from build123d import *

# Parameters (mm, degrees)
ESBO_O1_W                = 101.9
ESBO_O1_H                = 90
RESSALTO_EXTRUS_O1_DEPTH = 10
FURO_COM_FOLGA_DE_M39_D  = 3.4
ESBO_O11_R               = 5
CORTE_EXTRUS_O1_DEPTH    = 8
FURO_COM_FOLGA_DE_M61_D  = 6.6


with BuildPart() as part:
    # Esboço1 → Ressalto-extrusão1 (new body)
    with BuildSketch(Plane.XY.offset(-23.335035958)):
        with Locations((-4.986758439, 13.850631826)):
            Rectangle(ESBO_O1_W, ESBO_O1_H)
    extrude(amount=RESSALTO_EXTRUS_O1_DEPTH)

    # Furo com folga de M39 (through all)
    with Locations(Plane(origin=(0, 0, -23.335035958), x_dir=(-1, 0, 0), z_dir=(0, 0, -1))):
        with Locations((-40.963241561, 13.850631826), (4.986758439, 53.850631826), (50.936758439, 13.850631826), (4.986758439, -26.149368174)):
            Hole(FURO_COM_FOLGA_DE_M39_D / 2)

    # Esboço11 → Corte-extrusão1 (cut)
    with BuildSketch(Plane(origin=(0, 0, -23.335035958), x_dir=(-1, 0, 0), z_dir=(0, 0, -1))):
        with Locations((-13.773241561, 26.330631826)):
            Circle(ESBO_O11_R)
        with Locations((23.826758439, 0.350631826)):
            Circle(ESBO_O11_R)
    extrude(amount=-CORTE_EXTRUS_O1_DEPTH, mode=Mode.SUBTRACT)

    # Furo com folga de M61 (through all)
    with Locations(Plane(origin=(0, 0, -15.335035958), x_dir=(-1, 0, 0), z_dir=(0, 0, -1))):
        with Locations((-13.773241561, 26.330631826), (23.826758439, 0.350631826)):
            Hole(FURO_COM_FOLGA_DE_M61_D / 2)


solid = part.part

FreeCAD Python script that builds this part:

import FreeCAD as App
import Part
import Sketcher
from FreeCAD import Vector

doc = App.newDocument("Part")
body = doc.addObject("PartDesign::Body", "Body")

sketch1 = body.newObject("Sketcher::SketchObject", "Sketch")
sketch1.AttachmentSupport = (doc.getObject("XY_Plane"), [""])
sketch1.MapMode = "FlatFace"
sketch1.AttachmentOffset = App.Placement(Vector(0, 0, -23.335036), App.Rotation())
sketch1.addGeometry(Part.LineSegment(Vector(-56, 59, 0), Vector(-56, -31, 0)), False)
sketch1.addGeometry(Part.LineSegment(Vector(-56, -31, 0), Vector(46, -31, 0)), False)
sketch1.addGeometry(Part.LineSegment(Vector(46, -31, 0), Vector(46, 59, 0)), False)
sketch1.addGeometry(Part.LineSegment(Vector(46, 59, 0), Vector(-56, 59, 0)), False)
sketch1.addConstraint(Sketcher.Constraint("Coincident", 0, 2, 1, 1))
sketch1.addConstraint(Sketcher.Constraint("Coincident", 1, 2, 2, 1))
sketch1.addConstraint(Sketcher.Constraint("Coincident", 2, 2, 3, 1))
sketch1.addConstraint(Sketcher.Constraint("Coincident", 3, 2, 0, 1))
sketch1.addConstraint(Sketcher.Constraint("Vertical", 0))
sketch1.addConstraint(Sketcher.Constraint("Horizontal", 1))
sketch1.addConstraint(Sketcher.Constraint("Vertical", 2))
sketch1.addConstraint(Sketcher.Constraint("Horizontal", 3))
sketch1.addConstraint(Sketcher.Constraint("DistanceY", 0, 2, 0, 1, 90.0))
sketch1.addConstraint(Sketcher.Constraint("DistanceX", 1, 1, 1, 2, 101.9))
sketch1.addConstraint(Sketcher.Constraint("DistanceX", 0, 2, -1, 1, 55.936758))
sketch1.addConstraint(Sketcher.Constraint("DistanceY", 0, 2, -1, 1, 31.149368))
pad1 = body.newObject("PartDesign::Pad", "Pad")
pad1.Profile = sketch1
pad1.Length = 10

sketch2 = body.newObject("Sketcher::SketchObject", "Sketch001")
sketch2.AttachmentSupport = (doc.getObject("XY_Plane"), [""])
sketch2.MapMode = "FlatFace"
sketch2.AttachmentOffset = App.Placement(Vector(0, 0, -23.335036), App.Rotation())
sketch2.addGeometry(Part.Circle(Vector(41, 13.9, 0), Vector(0, 0, 1), 1.7), False)
sketch2.addGeometry(Part.Circle(Vector(-5, 53.9, 0), Vector(0, 0, 1), 1.7), False)
sketch2.addGeometry(Part.Circle(Vector(-50.9, 13.9, 0), Vector(0, 0, 1), 1.7), False)
sketch2.addGeometry(Part.Circle(Vector(-5, -26.1, 0), Vector(0, 0, 1), 1.7), False)
sketch2.addConstraint(Sketcher.Constraint("Equal", 0, 1))
sketch2.addConstraint(Sketcher.Constraint("Equal", 1, 2))
sketch2.addConstraint(Sketcher.Constraint("Equal", 2, 3))
sketch2.addConstraint(Sketcher.Constraint("Horizontal", 0, 3, 2, 3))
sketch2.addConstraint(Sketcher.Constraint("Vertical", 1, 3, 3, 3))
sketch2.addConstraint(Sketcher.Constraint("Diameter", 0, 3.4))
sketch2.addConstraint(Sketcher.Constraint("DistanceY", 0, 3, 1, 3, 40.0))
sketch2.addConstraint(Sketcher.Constraint("DistanceY", 3, 3, 0, 3, 40.0))
sketch2.addConstraint(Sketcher.Constraint("DistanceX", 2, 3, 0, 3, 91.9))
sketch2.addConstraint(Sketcher.Constraint("DistanceX", 1, 3, 0, 3, 45.95))
sketch2.addConstraint(Sketcher.Constraint("DistanceX", -1, 1, 0, 3, 40.963242))
sketch2.addConstraint(Sketcher.Constraint("DistanceY", -1, 1, 0, 3, 13.850632))
doc.recompute()
hole = body.newObject("PartDesign::Hole", "Hole")
hole.Profile = sketch2
hole.ThreadType = "None"
hole.Diameter = 3.4
hole.DepthType = "ThroughAll"
hole.Reversed = True

sketch3 = body.newObject("Sketcher::SketchObject", "Sketch002")
sketch3.AttachmentSupport = (doc.getObject("XY_Plane"), [""])
sketch3.MapMode = "FlatFace"
sketch3.AttachmentOffset = App.Placement(Vector(0, 0, -23.335036), App.Rotation())
sketch3.addGeometry(Part.Circle(Vector(14, 26, 0), Vector(0, 0, 1), 5), False)
sketch3.addGeometry(Part.Circle(Vector(-24, 0, 0), Vector(0, 0, 1), 5), False)
sketch3.addConstraint(Sketcher.Constraint("Equal", 0, 1))
sketch3.addConstraint(Sketcher.Constraint("Diameter", 0, 10.0))
sketch3.addConstraint(Sketcher.Constraint("DistanceX", 1, 3, 0, 3, 37.6))
sketch3.addConstraint(Sketcher.Constraint("DistanceY", 1, 3, 0, 3, 25.98))
sketch3.addConstraint(Sketcher.Constraint("DistanceX", -1, 1, 0, 3, 13.773242))
sketch3.addConstraint(Sketcher.Constraint("DistanceY", -1, 1, 0, 3, 26.330632))
pocket1 = body.newObject("PartDesign::Pocket", "Pocket")
pocket1.Profile = sketch3
pocket1.Length = 8
pocket1.Reversed = True

sketch4 = body.newObject("Sketcher::SketchObject", "Sketch003")
sketch4.AttachmentSupport = (doc.getObject("XY_Plane"), [""])
sketch4.MapMode = "FlatFace"
sketch4.AttachmentOffset = App.Placement(Vector(0, 0, -15.335036), App.Rotation())
sketch4.addGeometry(Part.Circle(Vector(13.8, 26.3, 0), Vector(0, 0, 1), 3.3), False)
sketch4.addGeometry(Part.Circle(Vector(-23.8, 0.4, 0), Vector(0, 0, 1), 3.3), False)
sketch4.addConstraint(Sketcher.Constraint("Equal", 0, 1))
sketch4.addConstraint(Sketcher.Constraint("Diameter", 0, 6.6))
sketch4.addConstraint(Sketcher.Constraint("DistanceX", 1, 3, 0, 3, 37.6))
sketch4.addConstraint(Sketcher.Constraint("DistanceY", 1, 3, 0, 3, 25.98))
sketch4.addConstraint(Sketcher.Constraint("DistanceX", -1, 1, 0, 3, 13.773242))
sketch4.addConstraint(Sketcher.Constraint("DistanceY", -1, 1, 0, 3, 26.330632))
doc.recompute()
hole2 = body.newObject("PartDesign::Hole", "Hole001")
hole2.Profile = sketch4
hole2.ThreadType = "None"
hole2.Diameter = 6.6
hole2.DepthType = "ThroughAll"
hole2.Reversed = True

doc.recompute()
